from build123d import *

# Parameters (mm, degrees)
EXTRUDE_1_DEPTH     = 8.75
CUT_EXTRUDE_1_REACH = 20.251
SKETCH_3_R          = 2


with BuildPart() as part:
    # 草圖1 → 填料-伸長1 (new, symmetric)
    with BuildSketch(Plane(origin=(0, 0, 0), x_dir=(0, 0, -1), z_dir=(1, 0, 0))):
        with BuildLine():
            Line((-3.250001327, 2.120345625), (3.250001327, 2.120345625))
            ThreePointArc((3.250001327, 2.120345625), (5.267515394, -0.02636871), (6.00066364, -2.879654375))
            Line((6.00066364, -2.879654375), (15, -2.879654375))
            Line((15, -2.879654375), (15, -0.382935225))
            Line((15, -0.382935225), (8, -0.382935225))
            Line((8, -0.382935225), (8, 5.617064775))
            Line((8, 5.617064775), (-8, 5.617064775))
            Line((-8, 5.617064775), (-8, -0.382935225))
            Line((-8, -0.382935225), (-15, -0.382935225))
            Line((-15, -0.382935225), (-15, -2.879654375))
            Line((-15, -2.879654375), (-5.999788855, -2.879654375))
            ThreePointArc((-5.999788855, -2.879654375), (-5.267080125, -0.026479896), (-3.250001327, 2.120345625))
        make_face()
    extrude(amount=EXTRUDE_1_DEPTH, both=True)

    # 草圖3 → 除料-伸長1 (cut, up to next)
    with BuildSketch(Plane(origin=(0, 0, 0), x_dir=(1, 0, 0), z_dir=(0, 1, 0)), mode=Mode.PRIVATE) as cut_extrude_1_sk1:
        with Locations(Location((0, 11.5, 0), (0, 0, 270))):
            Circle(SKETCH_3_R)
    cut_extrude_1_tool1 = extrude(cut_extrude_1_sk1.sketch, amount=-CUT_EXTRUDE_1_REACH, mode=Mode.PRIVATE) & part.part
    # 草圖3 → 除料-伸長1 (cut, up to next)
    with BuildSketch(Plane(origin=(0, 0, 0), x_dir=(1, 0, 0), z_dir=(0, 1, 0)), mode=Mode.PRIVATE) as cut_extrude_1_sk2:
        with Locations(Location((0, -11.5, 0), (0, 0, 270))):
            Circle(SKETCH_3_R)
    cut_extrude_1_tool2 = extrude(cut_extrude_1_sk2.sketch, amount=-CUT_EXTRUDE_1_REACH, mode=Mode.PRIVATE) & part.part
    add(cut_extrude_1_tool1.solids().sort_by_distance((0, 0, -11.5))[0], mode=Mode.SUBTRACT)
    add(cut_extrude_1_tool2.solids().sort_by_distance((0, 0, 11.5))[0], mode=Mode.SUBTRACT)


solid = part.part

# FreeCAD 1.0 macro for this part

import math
import FreeCAD as App
import Part
import Sketcher
from FreeCAD import Vector

doc = App.newDocument("Part")
body = doc.addObject("PartDesign::Body", "Body")

# Sketch on YZ plane
sketch1 = body.newObject("Sketcher::SketchObject", "Sketch")
sketch1.AttachmentSupport = (doc.getObject("YZ_Plane"), [""])
sketch1.MapMode = "FlatFace"
sketch1.addGeometry(Part.LineSegment(Vector(2.1, 3.3, 0), Vector(2.1, -3.3, 0)), False)
sketch1.addGeometry(Part.ArcOfCircle(Part.Circle(Vector(-2.9, -0.1, 0), Vector(0, 0, 1), 5.9), math.radians(-90), math.radians(-32)), False)
sketch1.addGeometry(Part.LineSegment(Vector(-2.9, -6, 0), Vector(-2.9, -15, 0)), False)
sketch1.addGeometry(Part.LineSegment(Vector(-2.9, -15, 0), Vector(-0.4, -15, 0)), False)
sketch1.addGeometry(Part.LineSegment(Vector(-0.4, -15, 0), Vector(-0.4, -8, 0)), False)
sketch1.addGeometry(Part.LineSegment(Vector(-0.4, -8, 0), Vector(5.6, -8, 0)), False)
sketch1.addGeometry(Part.LineSegment(Vector(5.6, -8, 0), Vector(5.6, 8, 0)), False)
sketch1.addGeometry(Part.LineSegment(Vector(5.6, 8, 0), Vector(-0.4, 8, 0)), False)
sketch1.addGeometry(Part.LineSegment(Vector(-0.4, 8, 0), Vector(-0.4, 15, 0)), False)
sketch1.addGeometry(Part.LineSegment(Vector(-0.4, 15, 0), Vector(-2.9, 15, 0)), False)
sketch1.addGeometry(Part.LineSegment(Vector(-2.9, 15, 0), Vector(-2.9, 6, 0)), False)
sketch1.addGeometry(Part.ArcOfCircle(Part.Circle(Vector(-2.9, 0.1, 0), Vector(0, 0, 1), 5.9), math.radians(32), math.radians(90)), False)
sketch1.addConstraint(Sketcher.Constraint("Coincident", 0, 2, 1, 2))
sketch1.addConstraint(Sketcher.Constraint("Coincident", 1, 1, 2, 1))
sketch1.addConstraint(Sketcher.Constraint("Coincident", 2, 2, 3, 1))
sketch1.addConstraint(Sketcher.Constraint("Coincident", 3, 2, 4, 1))
sketch1.addConstraint(Sketcher.Constraint("Coincident", 4, 2, 5, 1))
sketch1.addConstraint(Sketcher.Constraint("Coincident", 5, 2, 6, 1))
sketch1.addConstraint(Sketcher.Constraint("Coincident", 6, 2, 7, 1))
sketch1.addConstraint(Sketcher.Constraint("Coincident", 7, 2, 8, 1))
sketch1.addConstraint(Sketcher.Constraint("Coincident", 8, 2, 9, 1))
sketch1.addConstraint(Sketcher.Constraint("Coincident", 9, 2, 10, 1))
sketch1.addConstraint(Sketcher.Constraint("Coincident", 10, 2, 11, 2))
sketch1.addConstraint(Sketcher.Constraint("Coincident", 11, 1, 0, 1))
sketch1.addConstraint(Sketcher.Constraint("Vertical", 0))
sketch1.addConstraint(Sketcher.Constraint("Vertical", 2))
sketch1.addConstraint(Sketcher.Constraint("Horizontal", 3))
sketch1.addConstraint(Sketcher.Constraint("Vertical", 4))
sketch1.addConstraint(Sketcher.Constraint("Horizontal", 5))
sketch1.addConstraint(Sketcher.Constraint("Vertical", 6))
sketch1.addConstraint(Sketcher.Constraint("Horizontal", 7))
sketch1.addConstraint(Sketcher.Constraint("Vertical", 8))
sketch1.addConstraint(Sketcher.Constraint("Horizontal", 9))
sketch1.addConstraint(Sketcher.Constraint("Vertical", 10))
sketch1.addConstraint(Sketcher.Constraint("Symmetric", 4, 2, 7, 2, -1))
sketch1.addConstraint(Sketcher.Constraint("Symmetric", 2, 2, 9, 2, -1))
sketch1.addConstraint(Sketcher.Constraint("DistanceX", 5, 1, 5, 2, 6.0))
sketch1.addConstraint(Sketcher.Constraint("DistanceY", 4, 1, 4, 2, 7.0))
sketch1.addConstraint(Sketcher.Constraint("DistanceY", 6, 1, 6, 2, 16.0))
sketch1.addConstraint(Sketcher.Constraint("Radius", 11, 5.92))
sketch1.addConstraint(Sketcher.Constraint("DistanceX", 1, 1, 0, 2, 5.0))
sketch1.addConstraint(Sketcher.Constraint("DistanceY", 0, 2, -1, 1, 3.250001))
sketch1.addConstraint(Sketcher.Constraint("DistanceY", -1, 1, 11, 1, 3.250001))
sketch1.addConstraint(Sketcher.Constraint("Radius", 1, 5.920455))
sketch1.addConstraint(Sketcher.Constraint("DistanceX", 3, 1, 3, 2, 2.496719))
sketch1.addConstraint(Sketcher.Constraint("DistanceY", 10, 2, 10, 1, 9.000211))
sketch1.addConstraint(Sketcher.Constraint("DistanceY", 2, 2, 2, 1, 8.999336))
sketch1.addConstraint(Sketcher.Constraint("DistanceX", 11, 3, -1, 1, 2.87927))
pad1 = body.newObject("PartDesign::Pad", "Pad")
pad1.Profile = sketch1
pad1.Length = 17.5
pad1.Midplane = True

# Sketch on XZ plane
sketch2 = body.newObject("Sketcher::SketchObject", "Sketch001")
sketch2.AttachmentSupport = (doc.getObject("XZ_Plane"), [""])
sketch2.MapMode = "FlatFace"
sketch2.addGeometry(Part.Circle(Vector(0, -11.5, 0), Vector(0, 0, 1), 2), False)
sketch2.addConstraint(Sketcher.Constraint("PointOnObject", 0, 3, -2))
sketch2.addConstraint(Sketcher.Constraint("Diameter", 0, 4.0))
sketch2.addConstraint(Sketcher.Constraint("DistanceY", 0, 3, -1, 1, 11.5))
pocket1 = body.newObject("PartDesign::Pocket", "Pocket")
pocket1.Profile = sketch2
pocket1.Length = 2.879654
pocket1.Reversed = True

# Sketch on XZ plane
sketch3 = body.newObject("Sketcher::SketchObject", "Sketch002")
sketch3.AttachmentSupport = (doc.getObject("XZ_Plane"), [""])
sketch3.MapMode = "FlatFace"
sketch3.addGeometry(Part.Circle(Vector(0, 11.5, 0), Vector(0, 0, 1), 2), False)
sketch3.addConstraint(Sketcher.Constraint("PointOnObject", 0, 3, -2))
sketch3.addConstraint(Sketcher.Constraint("Diameter", 0, 4.0))
sketch3.addConstraint(Sketcher.Constraint("DistanceY", -1, 1, 0, 3, 11.5))
pocket2 = body.newObject("PartDesign::Pocket", "Pocket001")
pocket2.Profile = sketch3
pocket2.Length = 2.879654
pocket2.Reversed = True

doc.recompute()
